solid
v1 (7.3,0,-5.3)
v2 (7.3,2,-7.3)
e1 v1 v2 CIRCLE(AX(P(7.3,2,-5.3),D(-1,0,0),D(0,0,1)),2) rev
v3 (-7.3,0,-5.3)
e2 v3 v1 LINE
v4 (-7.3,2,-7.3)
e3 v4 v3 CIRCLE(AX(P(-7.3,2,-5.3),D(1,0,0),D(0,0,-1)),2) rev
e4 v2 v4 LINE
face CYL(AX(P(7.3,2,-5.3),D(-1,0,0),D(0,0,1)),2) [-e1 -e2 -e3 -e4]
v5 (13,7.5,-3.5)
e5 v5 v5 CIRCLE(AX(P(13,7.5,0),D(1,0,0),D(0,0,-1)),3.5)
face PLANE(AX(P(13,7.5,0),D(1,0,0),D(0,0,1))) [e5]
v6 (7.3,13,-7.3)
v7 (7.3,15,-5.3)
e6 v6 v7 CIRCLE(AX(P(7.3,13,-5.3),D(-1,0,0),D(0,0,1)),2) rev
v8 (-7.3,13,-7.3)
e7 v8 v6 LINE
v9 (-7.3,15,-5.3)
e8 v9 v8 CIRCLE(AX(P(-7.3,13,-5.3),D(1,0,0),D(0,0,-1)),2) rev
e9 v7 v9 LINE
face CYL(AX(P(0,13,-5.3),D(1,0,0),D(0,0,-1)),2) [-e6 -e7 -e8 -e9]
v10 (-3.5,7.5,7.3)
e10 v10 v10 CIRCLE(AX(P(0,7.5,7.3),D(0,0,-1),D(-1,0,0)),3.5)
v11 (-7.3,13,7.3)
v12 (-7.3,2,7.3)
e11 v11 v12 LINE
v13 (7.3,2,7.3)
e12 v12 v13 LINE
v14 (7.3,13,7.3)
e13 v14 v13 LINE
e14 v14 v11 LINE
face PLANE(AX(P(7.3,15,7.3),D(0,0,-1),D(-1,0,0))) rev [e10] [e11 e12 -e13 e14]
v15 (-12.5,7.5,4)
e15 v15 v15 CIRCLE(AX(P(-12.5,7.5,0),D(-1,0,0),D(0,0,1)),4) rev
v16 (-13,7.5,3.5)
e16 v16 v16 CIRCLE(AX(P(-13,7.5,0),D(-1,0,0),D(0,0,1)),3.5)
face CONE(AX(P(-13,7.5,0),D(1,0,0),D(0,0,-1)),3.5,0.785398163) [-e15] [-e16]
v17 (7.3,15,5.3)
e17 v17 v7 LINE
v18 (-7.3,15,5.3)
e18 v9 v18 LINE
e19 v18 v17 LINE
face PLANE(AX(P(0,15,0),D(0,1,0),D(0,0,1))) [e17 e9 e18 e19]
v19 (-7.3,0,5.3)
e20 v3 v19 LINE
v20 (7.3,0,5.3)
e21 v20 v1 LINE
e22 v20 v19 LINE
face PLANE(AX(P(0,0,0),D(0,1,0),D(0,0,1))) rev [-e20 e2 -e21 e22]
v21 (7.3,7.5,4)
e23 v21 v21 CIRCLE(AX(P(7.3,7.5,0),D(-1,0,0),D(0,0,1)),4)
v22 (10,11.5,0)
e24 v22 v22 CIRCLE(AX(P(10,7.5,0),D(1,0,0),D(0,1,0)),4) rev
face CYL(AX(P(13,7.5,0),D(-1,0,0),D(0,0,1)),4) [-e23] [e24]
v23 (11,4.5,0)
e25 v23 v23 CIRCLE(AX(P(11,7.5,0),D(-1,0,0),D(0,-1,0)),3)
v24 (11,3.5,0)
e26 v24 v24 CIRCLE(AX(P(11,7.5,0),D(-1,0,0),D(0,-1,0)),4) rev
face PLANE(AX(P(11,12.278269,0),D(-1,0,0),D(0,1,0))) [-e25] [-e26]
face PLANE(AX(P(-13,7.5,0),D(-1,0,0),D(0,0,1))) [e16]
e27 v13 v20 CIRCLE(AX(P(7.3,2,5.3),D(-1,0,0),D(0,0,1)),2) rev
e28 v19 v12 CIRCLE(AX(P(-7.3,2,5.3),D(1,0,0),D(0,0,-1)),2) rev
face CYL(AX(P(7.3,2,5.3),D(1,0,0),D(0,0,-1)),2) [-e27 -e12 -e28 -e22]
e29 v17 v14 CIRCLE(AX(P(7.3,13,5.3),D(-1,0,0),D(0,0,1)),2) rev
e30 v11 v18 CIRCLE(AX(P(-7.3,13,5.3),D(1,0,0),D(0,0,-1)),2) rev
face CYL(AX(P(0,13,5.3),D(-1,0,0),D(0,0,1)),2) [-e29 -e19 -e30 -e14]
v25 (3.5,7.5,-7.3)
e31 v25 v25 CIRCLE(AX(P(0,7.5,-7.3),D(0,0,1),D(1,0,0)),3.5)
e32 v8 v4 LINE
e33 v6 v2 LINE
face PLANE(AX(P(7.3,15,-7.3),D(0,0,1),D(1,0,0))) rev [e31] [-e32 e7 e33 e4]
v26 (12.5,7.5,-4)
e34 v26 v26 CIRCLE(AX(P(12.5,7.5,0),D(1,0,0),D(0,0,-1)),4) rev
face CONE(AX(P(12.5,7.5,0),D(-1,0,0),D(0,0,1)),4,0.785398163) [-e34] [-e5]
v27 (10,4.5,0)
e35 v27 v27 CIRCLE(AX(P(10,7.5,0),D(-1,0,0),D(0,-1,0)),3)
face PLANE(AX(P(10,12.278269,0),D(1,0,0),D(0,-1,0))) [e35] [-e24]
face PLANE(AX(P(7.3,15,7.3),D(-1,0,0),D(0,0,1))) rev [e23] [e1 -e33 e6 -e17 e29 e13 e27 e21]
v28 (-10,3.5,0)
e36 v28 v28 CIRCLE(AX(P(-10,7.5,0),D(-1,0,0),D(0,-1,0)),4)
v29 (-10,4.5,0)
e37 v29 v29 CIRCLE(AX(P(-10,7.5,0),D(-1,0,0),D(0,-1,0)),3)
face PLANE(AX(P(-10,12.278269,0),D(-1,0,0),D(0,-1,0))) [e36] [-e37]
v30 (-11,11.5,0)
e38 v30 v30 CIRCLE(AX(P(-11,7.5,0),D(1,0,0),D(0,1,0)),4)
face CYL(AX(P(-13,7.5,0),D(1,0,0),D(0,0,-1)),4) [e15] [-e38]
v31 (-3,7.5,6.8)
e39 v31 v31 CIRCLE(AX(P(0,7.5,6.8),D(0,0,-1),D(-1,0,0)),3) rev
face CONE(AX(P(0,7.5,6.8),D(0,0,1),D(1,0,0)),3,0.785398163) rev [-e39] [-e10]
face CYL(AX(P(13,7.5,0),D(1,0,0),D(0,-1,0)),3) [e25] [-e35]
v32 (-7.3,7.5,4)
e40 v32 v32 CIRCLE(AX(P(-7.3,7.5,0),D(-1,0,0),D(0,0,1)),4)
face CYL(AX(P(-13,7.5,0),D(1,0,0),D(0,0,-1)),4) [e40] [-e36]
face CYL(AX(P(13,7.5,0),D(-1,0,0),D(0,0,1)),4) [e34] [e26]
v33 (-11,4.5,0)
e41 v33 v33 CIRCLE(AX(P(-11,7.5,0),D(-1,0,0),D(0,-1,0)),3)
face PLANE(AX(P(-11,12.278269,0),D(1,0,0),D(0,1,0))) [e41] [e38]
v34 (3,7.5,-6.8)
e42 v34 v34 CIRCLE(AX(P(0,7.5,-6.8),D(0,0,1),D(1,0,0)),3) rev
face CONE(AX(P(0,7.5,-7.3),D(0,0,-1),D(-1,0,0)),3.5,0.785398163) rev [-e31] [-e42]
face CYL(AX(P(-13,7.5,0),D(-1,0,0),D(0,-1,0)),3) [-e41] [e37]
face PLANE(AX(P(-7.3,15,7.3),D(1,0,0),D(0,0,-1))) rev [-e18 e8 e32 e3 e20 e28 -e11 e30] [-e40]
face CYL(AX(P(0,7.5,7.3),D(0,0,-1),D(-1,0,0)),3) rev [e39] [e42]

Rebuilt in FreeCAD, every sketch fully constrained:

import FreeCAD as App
import Part
import Sketcher
from FreeCAD import Vector


def edges_at(feature, points):
    """Names of the edges that pass closest to the given points."""
    edges = feature.Shape.Edges
    near = lambda p: min(range(len(edges)), key=lambda i: edges[i].distToShape(Part.Vertex(*p))[0])
    return sorted({f"Edge{near(p) + 1}" for p in points})

doc = App.newDocument("Part")
body = doc.addObject("PartDesign::Body", "Body")

sketch1 = body.newObject("Sketcher::SketchObject", "Sketch")
sketch1.AttachmentSupport = (doc.getObject("XZ_Plane"), [""])
sketch1.MapMode = "FlatFace"
sketch1.addGeometry(Part.LineSegment(Vector(-7, -7, 0), Vector(-7, 7, 0)), False)
sketch1.addGeometry(Part.LineSegment(Vector(-7, 7, 0), Vector(7, 7, 0)), False)
sketch1.addGeometry(Part.LineSegment(Vector(7, 7, 0), Vector(7, -7, 0)), False)
sketch1.addGeometry(Part.LineSegment(Vector(7, -7, 0), Vector(-7, -7, 0)), False)
sketch1.addConstraint(Sketcher.Constraint("Coincident", 0, 2, 1, 1))
sketch1.addConstraint(Sketcher.Constraint("Coincident", 1, 2, 2, 1))
sketch1.addConstraint(Sketcher.Constraint("Coincident", 2, 2, 3, 1))
sketch1.addConstraint(Sketcher.Constraint("Coincident", 3, 2, 0, 1))
sketch1.addConstraint(Sketcher.Constraint("Vertical", 0))
sketch1.addConstraint(Sketcher.Constraint("Horizontal", 1))
sketch1.addConstraint(Sketcher.Constraint("Vertical", 2))
sketch1.addConstraint(Sketcher.Constraint("Horizontal", 3))
sketch1.addConstraint(Sketcher.Constraint("Symmetric", 0, 2, 2, 2, -1, 1))
sketch1.addConstraint(Sketcher.Constraint("Equal", 3, 0))
sketch1.addConstraint(Sketcher.Constraint("DistanceX", 1, 1, 1, 2, 14.6))
pad1 = body.newObject("PartDesign::Pad", "Pad")
pad1.Profile = sketch1
pad1.Length = 15
pad1.Reversed = True

sketch2 = body.newObject("Sketcher::SketchObject", "Sketch001")
sketch2.AttachmentSupport = (doc.getObject("XY_Plane"), [""])
sketch2.MapMode = "FlatFace"
sketch2.AttachmentOffset = App.Placement(Vector(0, 0, -7.3), App.Rotation())
sketch2.addGeometry(Part.Circle(Vector(0, 7.5, 0), Vector(0, 0, 1), 3), False)
sketch2.addConstraint(Sketcher.Constraint("PointOnObject", 0, 3, -2))
sketch2.addConstraint(Sketcher.Constraint("Diameter", 0, 6.0))
sketch2.addConstraint(Sketcher.Constraint("DistanceY", -1, 1, 0, 3, 7.5))
pocket1 = body.newObject("PartDesign::Pocket", "Pocket")
pocket1.Profile = sketch2
pocket1.Length = 14.6
pocket1.Reversed = True
doc.recompute()

chamfer = body.newObject("PartDesign::Chamfer", "Chamfer")
chamfer.Base = (pocket1, edges_at(pocket1, [(-3, 7.5, -7.3), (-3, 7.5, 7.3)]))
chamfer.Size = 0.5

sketch3 = body.newObject("Sketcher::SketchObject", "Sketch002")
sketch3.AttachmentSupport = (doc.getObject("YZ_Plane"), [""])
sketch3.MapMode = "FlatFace"
sketch3.AttachmentOffset = App.Placement(Vector(0, 0, -7.3), App.Rotation())
sketch3.addGeometry(Part.Circle(Vector(7.5, 0, 0), Vector(0, 0, 1), 4), False)
sketch3.addConstraint(Sketcher.Constraint("PointOnObject", 0, 3, -1))
sketch3.addConstraint(Sketcher.Constraint("Diameter", 0, 8.0))
sketch3.addConstraint(Sketcher.Constraint("DistanceX", -1, 1, 0, 3, 7.5))
pad2 = body.newObject("PartDesign::Pad", "Pad001")
pad2.Profile = sketch3
pad2.Length = 5.7
pad2.Reversed = True

sketch4 = body.newObject("Sketcher::SketchObject", "Sketch003")
sketch4.AttachmentSupport = (doc.getObject("XY_Plane"), [""])
sketch4.MapMode = "FlatFace"
sketch4.addGeometry(Part.LineSegment(Vector(-11, 12.3, 0), Vector(-11, 10.5, 0)), False)
sketch4.addGeometry(Part.LineSegment(Vector(-11, 10.5, 0), Vector(-10, 10.5, 0)), False)
sketch4.addGeometry(Part.LineSegment(Vector(-10, 10.5, 0), Vector(-10, 12.3, 0)), False)
sketch4.addGeometry(Part.LineSegment(Vector(-10, 12.3, 0), Vector(-11, 12.3, 0)), False)
sketch4.addGeometry(Part.LineSegment(Vector(-11, 7.5, 0), Vector(-10, 7.5, 0)), True)
sketch4.addConstraint(Sketcher.Constraint("Coincident", 0, 2, 1, 1))
sketch4.addConstraint(Sketcher.Constraint("Coincident", 1, 2, 2, 1))
sketch4.addConstraint(Sketcher.Constraint("Coincident", 2, 2, 3, 1))
sketch4.addConstraint(Sketcher.Constraint("Coincident", 3, 2, 0, 1))
sketch4.addConstraint(Sketcher.Constraint("Vertical", 0))
sketch4.addConstraint(Sketcher.Constraint("Horizontal", 1))
sketch4.addConstraint(Sketcher.Constraint("Vertical", 2))
sketch4.addConstraint(Sketcher.Constraint("Horizontal", 3))
sketch4.addConstraint(Sketcher.Constraint("Horizontal", 4))
sketch4.addConstraint(Sketcher.Constraint("Vertical", 3, 2, 4, 1))
sketch4.addConstraint(Sketcher.Constraint("Vertical", 2, 2, 4, 2))
sketch4.addConstraint(Sketcher.Constraint("DistanceX", 1, 1, 1, 2, 1.0))
sketch4.addConstraint(Sketcher.Constraint("DistanceX", 0, 2, -1, 1, 11.0))
sketch4.addConstraint(Sketcher.Constraint("DistanceY", 4, 1, 0, 2, 3.0))
sketch4.addConstraint(Sketcher.Constraint("DistanceY", -1, 1, 0, 2, 10.5))
sketch4.addConstraint(Sketcher.Constraint("DistanceY", 0, 2, 0, 1, 1.778269))
groove = body.newObject("PartDesign::Groove", "Groove")
groove.Profile = sketch4
groove.ReferenceAxis = (sketch4, ["Axis0"])
groove.Angle = 360
doc.recompute()

chamfer2 = body.newObject("PartDesign::Chamfer", "Chamfer001")
chamfer2.Base = (groove, edges_at(groove, [(-13, 7.5, -4)]))
chamfer2.Size = 0.5
doc.recompute()

mirrored = body.newObject("PartDesign::Mirrored", "Mirrored")
mirrored.Originals = [pad2, groove]
mirrored.MirrorPlane = (doc.getObject("YZ_Plane"), [""])
body.Tip = mirrored
doc.recompute()

chamfer3 = body.newObject("PartDesign::Chamfer", "Chamfer002")
chamfer3.Base = (mirrored, edges_at(mirrored, [(13, 7.5, -4)]))
chamfer3.Size = 0.5
doc.recompute()

fillet = body.newObject("PartDesign::Fillet", "Fillet")
fillet.Base = (chamfer3, edges_at(chamfer3, [
    (0, 15, -7.3),
    (0, 0, -7.3),
    (0, 0, 7.3),
    (0, 15, 7.3),
]))
fillet.Radius = 2

doc.recompute()
